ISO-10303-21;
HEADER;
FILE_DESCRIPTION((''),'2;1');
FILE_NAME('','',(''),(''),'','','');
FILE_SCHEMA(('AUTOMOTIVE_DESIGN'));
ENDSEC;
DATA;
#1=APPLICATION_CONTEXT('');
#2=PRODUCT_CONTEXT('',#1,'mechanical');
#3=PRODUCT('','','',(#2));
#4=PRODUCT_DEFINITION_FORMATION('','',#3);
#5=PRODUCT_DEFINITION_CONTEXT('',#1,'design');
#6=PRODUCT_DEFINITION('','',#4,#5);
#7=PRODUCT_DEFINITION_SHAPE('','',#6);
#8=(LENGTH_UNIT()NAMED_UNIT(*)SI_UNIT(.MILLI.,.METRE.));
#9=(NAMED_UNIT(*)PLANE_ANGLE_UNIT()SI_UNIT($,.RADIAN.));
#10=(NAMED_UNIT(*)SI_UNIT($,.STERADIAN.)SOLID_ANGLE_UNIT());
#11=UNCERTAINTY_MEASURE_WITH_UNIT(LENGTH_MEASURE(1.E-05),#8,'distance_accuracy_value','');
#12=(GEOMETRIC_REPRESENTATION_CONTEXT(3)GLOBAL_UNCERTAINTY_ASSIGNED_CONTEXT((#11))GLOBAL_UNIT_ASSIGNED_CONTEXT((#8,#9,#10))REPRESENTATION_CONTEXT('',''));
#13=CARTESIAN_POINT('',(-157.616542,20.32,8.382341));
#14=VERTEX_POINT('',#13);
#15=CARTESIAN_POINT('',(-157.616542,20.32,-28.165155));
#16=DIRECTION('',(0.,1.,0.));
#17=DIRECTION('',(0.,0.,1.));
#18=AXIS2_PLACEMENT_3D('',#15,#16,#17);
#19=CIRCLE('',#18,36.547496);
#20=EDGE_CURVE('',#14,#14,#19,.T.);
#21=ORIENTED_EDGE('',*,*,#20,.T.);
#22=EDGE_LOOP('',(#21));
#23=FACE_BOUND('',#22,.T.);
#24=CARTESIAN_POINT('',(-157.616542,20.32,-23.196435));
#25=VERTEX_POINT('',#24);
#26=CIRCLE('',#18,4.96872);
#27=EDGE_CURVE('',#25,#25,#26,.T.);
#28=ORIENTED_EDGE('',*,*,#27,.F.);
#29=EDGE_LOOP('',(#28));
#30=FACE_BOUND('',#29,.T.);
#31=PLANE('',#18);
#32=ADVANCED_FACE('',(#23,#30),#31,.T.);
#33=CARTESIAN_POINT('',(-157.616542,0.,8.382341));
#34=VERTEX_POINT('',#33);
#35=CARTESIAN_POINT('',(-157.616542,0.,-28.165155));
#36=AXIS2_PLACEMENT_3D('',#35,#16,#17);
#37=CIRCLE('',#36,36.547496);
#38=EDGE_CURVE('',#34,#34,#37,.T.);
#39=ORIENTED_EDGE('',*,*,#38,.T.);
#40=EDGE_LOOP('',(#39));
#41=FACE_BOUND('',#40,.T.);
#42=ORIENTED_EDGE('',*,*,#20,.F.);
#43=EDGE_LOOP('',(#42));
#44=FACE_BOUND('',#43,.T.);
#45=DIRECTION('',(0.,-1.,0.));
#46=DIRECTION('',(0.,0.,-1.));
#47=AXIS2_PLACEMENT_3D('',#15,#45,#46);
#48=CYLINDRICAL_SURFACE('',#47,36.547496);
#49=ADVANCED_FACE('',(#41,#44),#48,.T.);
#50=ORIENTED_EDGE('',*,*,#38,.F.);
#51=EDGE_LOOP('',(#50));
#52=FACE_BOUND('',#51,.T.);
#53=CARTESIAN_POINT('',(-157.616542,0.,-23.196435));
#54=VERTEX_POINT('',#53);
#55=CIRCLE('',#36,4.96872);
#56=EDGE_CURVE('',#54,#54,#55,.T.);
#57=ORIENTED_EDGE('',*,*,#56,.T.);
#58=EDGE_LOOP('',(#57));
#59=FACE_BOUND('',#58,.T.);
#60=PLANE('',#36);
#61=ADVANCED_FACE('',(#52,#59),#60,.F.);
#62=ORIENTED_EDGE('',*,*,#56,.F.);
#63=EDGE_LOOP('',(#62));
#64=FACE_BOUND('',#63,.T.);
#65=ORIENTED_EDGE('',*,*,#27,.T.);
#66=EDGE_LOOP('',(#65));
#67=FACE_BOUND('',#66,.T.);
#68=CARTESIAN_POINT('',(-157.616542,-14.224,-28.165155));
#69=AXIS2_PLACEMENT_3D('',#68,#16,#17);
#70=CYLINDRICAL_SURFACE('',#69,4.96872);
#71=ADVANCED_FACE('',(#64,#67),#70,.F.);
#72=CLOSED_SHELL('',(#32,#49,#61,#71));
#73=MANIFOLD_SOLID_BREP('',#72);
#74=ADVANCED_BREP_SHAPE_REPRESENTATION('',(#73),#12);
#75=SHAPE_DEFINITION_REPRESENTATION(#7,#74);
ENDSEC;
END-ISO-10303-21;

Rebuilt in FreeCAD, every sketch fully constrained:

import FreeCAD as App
import Part
import Sketcher

V = App.Vector
Q = App.Units.Quantity

doc = App.newDocument("Part")
body = doc.addObject("PartDesign::Body", "Body")

# Sketch on XZ plane
sketch1 = body.newObject("Sketcher::SketchObject", "Sketch")
sketch1.AttachmentSupport = (doc.getObject("XZ_Plane"), [""])
sketch1.MapMode = "FlatFace"
sketch1.addGeometry(Part.Circle(V(-157.616542, -28.165155, 0), V(0, 0, 1), 36.547496), False)
sketch1.addConstraint([
    Sketcher.Constraint("Diameter", 0, 73.094993),
    Sketcher.Constraint("DistanceX", 0, 3, -1, 1, 157.616542),
    Sketcher.Constraint("DistanceY", 0, 3, -1, 1, 28.165155),
])
pad1 = body.newObject("PartDesign::Pad", "Pad")
pad1.Profile = sketch1
pad1.Length = Q("0.8 in")
pad1.Reversed = True

# Sketch on XZ plane
sketch2 = body.newObject("Sketcher::SketchObject", "Sketch001")
sketch2.AttachmentSupport = (doc.getObject("XZ_Plane"), [""])
sketch2.MapMode = "FlatFace"
sketch2.AttachmentOffset = App.Placement(V(0, 0, -0.8 * 25.4), App.Rotation())
sketch2.addGeometry(Part.Circle(V(-157.616542, -28.165155, 0), V(0, 0, 1), 4.96872), False)
sketch2.addConstraint([
    Sketcher.Constraint("Diameter", 0, 9.93744),
    Sketcher.Constraint("DistanceX", 0, 3, -1, 1, 157.616542),
    Sketcher.Constraint("DistanceY", 0, 3, -1, 1, 28.165155),
])
pocket1 = body.newObject("PartDesign::Pocket", "Pocket")
pocket1.Profile = sketch2
pocket1.Length = Q("1.36 in")
pocket1.Reversed = True

doc.recompute()
